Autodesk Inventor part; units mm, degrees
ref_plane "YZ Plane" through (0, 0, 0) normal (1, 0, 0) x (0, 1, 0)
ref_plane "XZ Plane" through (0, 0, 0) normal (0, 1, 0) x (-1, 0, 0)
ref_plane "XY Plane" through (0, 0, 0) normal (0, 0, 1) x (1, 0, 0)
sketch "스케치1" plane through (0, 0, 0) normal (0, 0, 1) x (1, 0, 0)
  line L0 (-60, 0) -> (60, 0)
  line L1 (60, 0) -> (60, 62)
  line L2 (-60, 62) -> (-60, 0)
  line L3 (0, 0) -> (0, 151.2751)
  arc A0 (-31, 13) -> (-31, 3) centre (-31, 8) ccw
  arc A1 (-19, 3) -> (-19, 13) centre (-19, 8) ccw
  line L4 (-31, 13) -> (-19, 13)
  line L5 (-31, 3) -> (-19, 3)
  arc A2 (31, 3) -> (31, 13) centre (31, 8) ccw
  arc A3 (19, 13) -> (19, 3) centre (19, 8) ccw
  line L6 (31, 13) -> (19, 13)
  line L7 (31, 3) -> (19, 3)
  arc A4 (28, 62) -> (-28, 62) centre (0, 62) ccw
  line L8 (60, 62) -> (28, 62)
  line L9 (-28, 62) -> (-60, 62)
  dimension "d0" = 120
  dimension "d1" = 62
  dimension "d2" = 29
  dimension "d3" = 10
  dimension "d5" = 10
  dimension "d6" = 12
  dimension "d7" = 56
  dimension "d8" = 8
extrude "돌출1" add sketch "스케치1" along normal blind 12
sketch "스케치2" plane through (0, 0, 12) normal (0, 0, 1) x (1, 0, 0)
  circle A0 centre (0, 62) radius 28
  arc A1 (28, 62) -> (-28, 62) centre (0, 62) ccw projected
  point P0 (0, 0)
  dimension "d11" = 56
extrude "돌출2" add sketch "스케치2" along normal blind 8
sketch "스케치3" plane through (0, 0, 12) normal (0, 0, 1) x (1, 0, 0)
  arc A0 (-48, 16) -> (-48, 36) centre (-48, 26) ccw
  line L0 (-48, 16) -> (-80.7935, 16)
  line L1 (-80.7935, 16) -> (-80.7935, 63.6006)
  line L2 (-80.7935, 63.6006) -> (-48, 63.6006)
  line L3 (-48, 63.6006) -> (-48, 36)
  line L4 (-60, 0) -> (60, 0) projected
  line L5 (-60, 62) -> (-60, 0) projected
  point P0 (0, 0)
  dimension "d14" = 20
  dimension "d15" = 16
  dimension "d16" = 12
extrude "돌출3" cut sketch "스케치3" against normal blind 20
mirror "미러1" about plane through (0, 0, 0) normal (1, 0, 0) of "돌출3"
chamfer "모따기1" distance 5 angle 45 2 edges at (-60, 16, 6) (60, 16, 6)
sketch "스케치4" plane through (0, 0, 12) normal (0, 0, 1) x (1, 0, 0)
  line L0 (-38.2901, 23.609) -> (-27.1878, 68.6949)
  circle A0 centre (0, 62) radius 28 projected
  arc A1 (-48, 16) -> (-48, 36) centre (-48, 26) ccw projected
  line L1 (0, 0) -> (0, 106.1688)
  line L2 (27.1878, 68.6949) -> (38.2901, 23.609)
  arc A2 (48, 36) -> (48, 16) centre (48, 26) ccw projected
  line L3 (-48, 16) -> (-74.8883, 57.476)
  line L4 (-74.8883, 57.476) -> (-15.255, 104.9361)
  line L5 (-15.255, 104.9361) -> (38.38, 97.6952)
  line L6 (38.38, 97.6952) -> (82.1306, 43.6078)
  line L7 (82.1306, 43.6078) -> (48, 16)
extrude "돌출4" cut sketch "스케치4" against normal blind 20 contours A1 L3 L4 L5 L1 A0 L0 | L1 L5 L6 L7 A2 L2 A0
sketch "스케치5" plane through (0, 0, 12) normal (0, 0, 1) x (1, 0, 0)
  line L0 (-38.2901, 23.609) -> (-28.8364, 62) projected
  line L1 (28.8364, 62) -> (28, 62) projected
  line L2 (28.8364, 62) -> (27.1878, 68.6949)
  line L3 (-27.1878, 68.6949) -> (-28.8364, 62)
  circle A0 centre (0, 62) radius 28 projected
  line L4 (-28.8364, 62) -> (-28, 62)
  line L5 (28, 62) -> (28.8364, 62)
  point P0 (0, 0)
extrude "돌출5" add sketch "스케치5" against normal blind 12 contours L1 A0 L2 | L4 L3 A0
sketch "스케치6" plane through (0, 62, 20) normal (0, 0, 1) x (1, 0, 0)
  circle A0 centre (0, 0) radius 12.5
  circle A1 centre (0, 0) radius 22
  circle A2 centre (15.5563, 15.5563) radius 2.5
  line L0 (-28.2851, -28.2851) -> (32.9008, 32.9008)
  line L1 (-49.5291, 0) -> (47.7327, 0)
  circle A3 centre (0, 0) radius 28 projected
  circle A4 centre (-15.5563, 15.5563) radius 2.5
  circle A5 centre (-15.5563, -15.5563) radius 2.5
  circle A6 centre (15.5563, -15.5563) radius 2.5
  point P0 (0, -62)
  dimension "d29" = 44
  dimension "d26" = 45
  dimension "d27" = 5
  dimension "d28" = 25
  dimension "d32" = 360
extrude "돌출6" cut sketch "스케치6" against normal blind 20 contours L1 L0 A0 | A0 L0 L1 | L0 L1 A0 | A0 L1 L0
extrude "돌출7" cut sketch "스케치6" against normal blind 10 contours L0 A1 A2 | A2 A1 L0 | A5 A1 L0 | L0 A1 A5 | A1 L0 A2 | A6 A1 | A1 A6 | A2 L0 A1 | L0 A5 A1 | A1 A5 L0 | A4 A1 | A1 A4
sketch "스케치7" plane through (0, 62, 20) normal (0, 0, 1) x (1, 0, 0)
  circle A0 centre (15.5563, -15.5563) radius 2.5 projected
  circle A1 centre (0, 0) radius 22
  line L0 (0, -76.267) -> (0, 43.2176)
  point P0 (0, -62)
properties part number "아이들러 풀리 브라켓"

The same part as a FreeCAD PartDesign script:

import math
import FreeCAD as App
import Part
import Sketcher

V = App.Vector
Q = App.Units.Quantity


def edges_at(feature, points):
    """Names of the edges that pass closest to the given points."""
    edges = feature.Shape.Edges
    near = lambda p: min(range(len(edges)), key=lambda i: edges[i].distToShape(Part.Vertex(*p))[0])
    return sorted({f"Edge{near(p) + 1}" for p in points})

doc = App.newDocument("Part")
body = doc.addObject("PartDesign::Body", "Body")

# Sketch on XY plane
sketch1 = body.newObject("Sketcher::SketchObject", "Sketch")
sketch1.AttachmentSupport = (doc.getObject("XY_Plane"), [""])
sketch1.MapMode = "FlatFace"
sketch1.addGeometry(Part.LineSegment(V(-60, 62, 0), V(-60, 0, 0)), False)
sketch1.addGeometry(Part.LineSegment(V(-60, 0, 0), V(60, 0, 0)), False)
sketch1.addGeometry(Part.LineSegment(V(60, 0, 0), V(60, 62, 0)), False)
sketch1.addGeometry(Part.LineSegment(V(60, 62, 0), V(28, 62, 0)), False)
sketch1.addGeometry(Part.ArcOfCircle(Part.Circle(V(0, 62, 0), V(0, 0, 1), 28), math.radians(0), math.radians(180)), False)
sketch1.addGeometry(Part.LineSegment(V(-28, 62, 0), V(-60, 62, 0)), False)
sketch1.addGeometry(Part.ArcOfCircle(Part.Circle(V(-31, 8, 0), V(0, 0, 1), 5), math.radians(90), math.radians(270)), False)
sketch1.addGeometry(Part.LineSegment(V(-31, 13, 0), V(-19, 13, 0)), False)
sketch1.addGeometry(Part.ArcOfCircle(Part.Circle(V(-19, 8, 0), V(0, 0, 1), 5), math.radians(-90), math.radians(90)), False)
sketch1.addGeometry(Part.LineSegment(V(-19, 3, 0), V(-31, 3, 0)), False)
sketch1.addGeometry(Part.LineSegment(V(31, 3, 0), V(19, 3, 0)), False)
sketch1.addGeometry(Part.ArcOfCircle(Part.Circle(V(19, 8, 0), V(0, 0, 1), 5), math.radians(90), math.radians(270)), False)
sketch1.addGeometry(Part.LineSegment(V(19, 13, 0), V(31, 13, 0)), False)
sketch1.addGeometry(Part.ArcOfCircle(Part.Circle(V(31, 8, 0), V(0, 0, 1), 5), math.radians(-90), math.radians(90)), False)
sketch1.addConstraint(Sketcher.Constraint("Coincident", 0, 2, 1, 1))
sketch1.addConstraint(Sketcher.Constraint("Coincident", 1, 2, 2, 1))
sketch1.addConstraint(Sketcher.Constraint("Coincident", 2, 2, 3, 1))
sketch1.addConstraint(Sketcher.Constraint("Coincident", 3, 2, 4, 1))
sketch1.addConstraint(Sketcher.Constraint("Coincident", 4, 2, 5, 1))
sketch1.addConstraint(Sketcher.Constraint("Coincident", 5, 2, 0, 1))
sketch1.addConstraint(Sketcher.Constraint("Tangent", 6, 1, 7, 1))
sketch1.addConstraint(Sketcher.Constraint("Tangent", 7, 2, 8, 2))
sketch1.addConstraint(Sketcher.Constraint("Tangent", 8, 1, 9, 1))
sketch1.addConstraint(Sketcher.Constraint("Tangent", 9, 2, 6, 2))
sketch1.addConstraint(Sketcher.Constraint("Tangent", 10, 2, 11, 2))
sketch1.addConstraint(Sketcher.Constraint("Tangent", 11, 1, 12, 1))
sketch1.addConstraint(Sketcher.Constraint("Tangent", 12, 2, 13, 2))
sketch1.addConstraint(Sketcher.Constraint("Tangent", 13, 1, 10, 1))
sketch1.addConstraint(Sketcher.Constraint("Vertical", 0))
sketch1.addConstraint(Sketcher.Constraint("Horizontal", 1))
sketch1.addConstraint(Sketcher.Constraint("Vertical", 2))
sketch1.addConstraint(Sketcher.Constraint("Horizontal", 3))
sketch1.addConstraint(Sketcher.Constraint("Horizontal", 5))
sketch1.addConstraint(Sketcher.Constraint("Horizontal", 7))
sketch1.addConstraint(Sketcher.Constraint("Horizontal", 9))
sketch1.addConstraint(Sketcher.Constraint("Horizontal", 10))
sketch1.addConstraint(Sketcher.Constraint("Horizontal", 12))
sketch1.addConstraint(Sketcher.Constraint("Equal", 8, 11))
sketch1.addConstraint(Sketcher.Constraint("Symmetric", 0, 2, 1, 2, -1, 1))
sketch1.addConstraint(Sketcher.Constraint("Symmetric", 8, 3, 11, 3, -2))
sketch1.addConstraint(Sketcher.Constraint("Symmetric", 3, 2, 4, 2, -2))
sketch1.addConstraint(Sketcher.Constraint("Horizontal", 4, 3, 2, 2))
sketch1.addConstraint(Sketcher.Constraint("Equal", 9, 10))
sketch1.addConstraint(Sketcher.Constraint("Radius", 4, 28.0))
sketch1.addConstraint(Sketcher.Constraint("Radius", 6, 5.0))
sketch1.addConstraint(Sketcher.Constraint("DistanceX", 1, 1, 1, 2, 120.0))
sketch1.addConstraint(Sketcher.Constraint("DistanceX", 7, 1, 7, 2, 12.0))
sketch1.addConstraint(Sketcher.Constraint("DistanceY", 0, 2, 0, 1, 62.0))
sketch1.addConstraint(Sketcher.Constraint("DistanceY", -1, 1, 6, 3, 8.0))
sketch1.addConstraint(Sketcher.Constraint("DistanceX", 6, 3, 13, 3, 62.0))
pad1 = body.newObject("PartDesign::Pad", "Pad")
pad1.Profile = sketch1
pad1.Length = 12

# Sketch on XY plane
sketch2 = body.newObject("Sketcher::SketchObject", "Sketch001")
sketch2.AttachmentSupport = (doc.getObject("XY_Plane"), [""])
sketch2.MapMode = "FlatFace"
sketch2.AttachmentOffset = App.Placement(V(0, 0, 12), App.Rotation())
sketch2.addGeometry(Part.Circle(V(0, 62, 0), V(0, 0, 1), 28), False)
sketch2.addConstraint(Sketcher.Constraint("PointOnObject", 0, 3, -2))
sketch2.addConstraint(Sketcher.Constraint("Diameter", 0, 56.0))
sketch2.addConstraint(Sketcher.Constraint("DistanceY", -1, 1, 0, 3, 62.0))
pad2 = body.newObject("PartDesign::Pad", "Pad001")
pad2.Profile = sketch2
pad2.Length = 8

# Sketch on XY plane
sketch3 = body.newObject("Sketcher::SketchObject", "Sketch002")
sketch3.AttachmentSupport = (doc.getObject("XY_Plane"), [""])
sketch3.MapMode = "FlatFace"
sketch3.AttachmentOffset = App.Placement(V(0, 0, 12), App.Rotation())
sketch3.addGeometry(Part.LineSegment(V(-80.7935, 16, 0), V(-48, 16, 0)), False)
sketch3.addGeometry(Part.ArcOfCircle(Part.Circle(V(-48, 26, 0), V(0, 0, 1), 10), math.radians(-90), math.radians(90)), False)
sketch3.addGeometry(Part.LineSegment(V(-48, 36, 0), V(-48, 63.6006, 0)), False)
sketch3.addGeometry(Part.LineSegment(V(-48, 63.6006, 0), V(-80.7935, 63.6006, 0)), False)
sketch3.addGeometry(Part.LineSegment(V(-80.7935, 63.6006, 0), V(-80.7935, 16, 0)), False)
sketch3.addConstraint(Sketcher.Constraint("Tangent", 0, 2, 1, 1))
sketch3.addConstraint(Sketcher.Constraint("Coincident", 1, 2, 2, 1))
sketch3.addConstraint(Sketcher.Constraint("Coincident", 2, 2, 3, 1))
sketch3.addConstraint(Sketcher.Constraint("Coincident", 3, 2, 4, 1))
sketch3.addConstraint(Sketcher.Constraint("Coincident", 4, 2, 0, 1))
sketch3.addConstraint(Sketcher.Constraint("Horizontal", 0))
sketch3.addConstraint(Sketcher.Constraint("Vertical", 2))
sketch3.addConstraint(Sketcher.Constraint("Horizontal", 3))
sketch3.addConstraint(Sketcher.Constraint("Vertical", 4))
sketch3.addConstraint(Sketcher.Constraint("Vertical", 0, 2, 1, 2))
sketch3.addConstraint(Sketcher.Constraint("Radius", 1, 10.0))
sketch3.addConstraint(Sketcher.Constraint("DistanceY", -1, 1, 0, 2, 16.0))
sketch3.addConstraint(Sketcher.Constraint("DistanceX", 1, 3, -1, 1, 48.0))
sketch3.addConstraint(Sketcher.Constraint("DistanceX", 0, 1, 0, 2, 32.7935))
sketch3.addConstraint(Sketcher.Constraint("DistanceY", 2, 1, 2, 2, 27.6006))
pocket1 = body.newObject("PartDesign::Pocket", "Pocket")
pocket1.Profile = sketch3
pocket1.Length = 20
doc.recompute()

mirrored = body.newObject("PartDesign::Mirrored", "Mirrored")
mirrored.Originals = [pocket1]
mirrored.MirrorPlane = (doc.getObject("YZ_Plane"), [""])
body.Tip = mirrored
doc.recompute()

chamfer = body.newObject("PartDesign::Chamfer", "Chamfer")
chamfer.Base = (mirrored, edges_at(mirrored, [(-60, 16, 6), (60, 16, 6)]))
chamfer.Size = 5

# Sketch on XY plane
sketch4 = body.newObject("Sketcher::SketchObject", "Sketch003")
sketch4.AttachmentSupport = (doc.getObject("XY_Plane"), [""])
sketch4.MapMode = "FlatFace"
sketch4.AttachmentOffset = App.Placement(V(0, 0, 12), App.Rotation())
sketch4.addGeometry(Part.ArcOfCircle(Part.Circle(V(-48, 26, 0), V(0, 0, 1), 10), math.radians(-90), math.radians(-13.833496)), False)
sketch4.addGeometry(Part.LineSegment(V(-38.2901, 23.609, 0), V(-27.1878, 68.6949, 0)), False)
sketch4.addGeometry(Part.ArcOfCircle(Part.Circle(V(0, 62, 0), V(0, 0, 1), 28), math.radians(13.833655), math.radians(166.166345)), False)
sketch4.addGeometry(Part.LineSegment(V(27.1878, 68.6949, 0), V(38.2901, 23.609, 0)), False)
sketch4.addGeometry(Part.ArcOfCircle(Part.Circle(V(48, 26, 0), V(0, 0, 1), 10), math.radians(-166.166504), math.radians(-90)), False)
sketch4.addGeometry(Part.LineSegment(V(48, 16, 0), V(82.1306, 43.6078, 0)), False)
sketch4.addGeometry(Part.LineSegment(V(82.1306, 43.6078, 0), V(38.38, 97.6952, 0)), False)
sketch4.addGeometry(Part.LineSegment(V(38.38, 97.6952, 0), V(-15.255, 104.9361, 0)), False)
sketch4.addGeometry(Part.LineSegment(V(-15.255, 104.9361, 0), V(-74.8883, 57.476, 0)), False)
sketch4.addGeometry(Part.LineSegment(V(-74.8883, 57.476, 0), V(-48, 16, 0)), False)
sketch4.addConstraint(Sketcher.Constraint("Tangent", 0, 2, 1, 1))
sketch4.addConstraint(Sketcher.Constraint("Tangent", 1, 2, 2, 2))
sketch4.addConstraint(Sketcher.Constraint("Tangent", 2, 1, 3, 1))
sketch4.addConstraint(Sketcher.Constraint("Tangent", 3, 2, 4, 1))
sketch4.addConstraint(Sketcher.Constraint("Coincident", 4, 2, 5, 1))
sketch4.addConstraint(Sketcher.Constraint("Coincident", 5, 2, 6, 1))
sketch4.addConstraint(Sketcher.Constraint("Coincident", 6, 2, 7, 1))
sketch4.addConstraint(Sketcher.Constraint("Coincident", 7, 2, 8, 1))
sketch4.addConstraint(Sketcher.Constraint("Coincident", 8, 2, 9, 1))
sketch4.addConstraint(Sketcher.Constraint("Coincident", 9, 2, 0, 1))
sketch4.addConstraint(Sketcher.Constraint("Equal", 0, 4))
sketch4.addConstraint(Sketcher.Constraint("Symmetric", 0, 3, 4, 3, -2))
sketch4.addConstraint(Sketcher.Constraint("PointOnObject", 2, 3, -2))
sketch4.addConstraint(Sketcher.Constraint("Perpendicular", 5, 6))
sketch4.addConstraint(Sketcher.Constraint("Vertical", 0, 3, 9, 2))
sketch4.addConstraint(Sketcher.Constraint("Radius", 0, 10.0))
sketch4.addConstraint(Sketcher.Constraint("Radius", 2, 28.0))
sketch4.addConstraint(Sketcher.Constraint("DistanceX", 0, 3, -1, 1, 48.0))
sketch4.addConstraint(Sketcher.Constraint("DistanceY", -1, 1, 0, 3, 26.0))
sketch4.addConstraint(Sketcher.Constraint("DistanceY", -1, 1, 2, 3, 62.0))
sketch4.addConstraint(Sketcher.Constraint("DistanceX", -1, 1, 4, 2, 48.0))
sketch4.addConstraint(Sketcher.Constraint("Angle", 5, Q("38.969 deg")))
sketch4.addConstraint(Sketcher.Constraint("DistanceX", -1, 1, 6, 2, 38.38))
sketch4.addConstraint(Sketcher.Constraint("DistanceY", 8, 2, 7, 2, 47.46))
sketch4.addConstraint(Sketcher.Constraint("Distance", 6, 69.567))
sketch4.addConstraint(Sketcher.Constraint("Distance", 8, 76.214))
sketch4.addConstraint(Sketcher.Constraint("DistanceX", 7, 2, -1, 1, 15.255))
sketch4.addConstraint(Sketcher.Constraint("DistanceY", -1, 1, 7, 2, 104.936))
pocket2 = body.newObject("PartDesign::Pocket", "Pocket001")
pocket2.Profile = sketch4
pocket2.Length = 20

# Sketch on XY plane
sketch5 = body.newObject("Sketcher::SketchObject", "Sketch004")
sketch5.AttachmentSupport = (doc.getObject("XY_Plane"), [""])
sketch5.MapMode = "FlatFace"
sketch5.AttachmentOffset = App.Placement(V(0, 0, 12), App.Rotation())
sketch5.addGeometry(Part.LineSegment(V(28, 62, 0), V(28.8364, 62, 0)), False)
sketch5.addGeometry(Part.LineSegment(V(28.8364, 62, 0), V(27.1878, 68.6949, 0)), False)
sketch5.addGeometry(Part.ArcOfCircle(Part.Circle(V(0, 62, 0), V(0, 0, 1), 28), math.radians(0), math.radians(13.833655)), False)
sketch5.addGeometry(Part.LineSegment(V(-28.8364, 62, 0), V(-28, 62, 0)), False)
sketch5.addGeometry(Part.ArcOfCircle(Part.Circle(V(0, 62, 0), V(0, 0, 1), 28), math.radians(166.166345), math.radians(180)), False)
sketch5.addGeometry(Part.LineSegment(V(-27.1878, 68.6949, 0), V(-28.8364, 62, 0)), False)
sketch5.addConstraint(Sketcher.Constraint("Coincident", 0, 2, 1, 1))
sketch5.addConstraint(Sketcher.Constraint("Tangent", 1, 2, 2, 2))
sketch5.addConstraint(Sketcher.Constraint("Coincident", 2, 1, 0, 1))
sketch5.addConstraint(Sketcher.Constraint("Coincident", 3, 2, 4, 2))
sketch5.addConstraint(Sketcher.Constraint("Tangent", 4, 1, 5, 1))
sketch5.addConstraint(Sketcher.Constraint("Coincident", 5, 2, 3, 1))
sketch5.addConstraint(Sketcher.Constraint("Horizontal", 0))
sketch5.addConstraint(Sketcher.Constraint("Horizontal", 3))
sketch5.addConstraint(Sketcher.Constraint("Coincident", 4, 3, 2, 3))
sketch5.addConstraint(Sketcher.Constraint("Equal", 2, 4))
sketch5.addConstraint(Sketcher.Constraint("Symmetric", 2, 1, 3, 2, -2))
sketch5.addConstraint(Sketcher.Constraint("Horizontal", 4, 3, 0, 2))
sketch5.addConstraint(Sketcher.Constraint("Horizontal", 1, 2, 4, 1))
sketch5.addConstraint(Sketcher.Constraint("Radius", 2, 28.0))
sketch5.addConstraint(Sketcher.Constraint("DistanceY", -1, 1, 2, 3, 62.0))
sketch5.addConstraint(Sketcher.Constraint("Distance", 1, 6.895))
pad3 = body.newObject("PartDesign::Pad", "Pad002")
pad3.Profile = sketch5
pad3.Length = 12
pad3.Reversed = True

# Sketch on XY plane
sketch6 = body.newObject("Sketcher::SketchObject", "Sketch005")
sketch6.AttachmentSupport = (doc.getObject("XY_Plane"), [""])
sketch6.MapMode = "FlatFace"
sketch6.AttachmentOffset = App.Placement(V(0, 0, 20), App.Rotation())
sketch6.addGeometry(Part.Circle(V(0, 62, 0), V(0, 0, 1), 12.5), False)
sketch6.addConstraint(Sketcher.Constraint("PointOnObject", 0, 3, -2))
sketch6.addConstraint(Sketcher.Constraint("Diameter", 0, 25.0))
sketch6.addConstraint(Sketcher.Constraint("DistanceY", -1, 1, 0, 3, 62.0))
pocket3 = body.newObject("PartDesign::Pocket", "Pocket002")
pocket3.Profile = sketch6
pocket3.Length = 20

# Sketch on XY plane
sketch7 = body.newObject("Sketcher::SketchObject", "Sketch006")
sketch7.AttachmentSupport = (doc.getObject("XY_Plane"), [""])
sketch7.MapMode = "FlatFace"
sketch7.AttachmentOffset = App.Placement(V(0, 0, 20), App.Rotation())
sketch7.addGeometry(Part.Circle(V(15.5563, 77.5563, 0), V(0, 0, 1), 2.5), False)
sketch7.addGeometry(Part.Circle(V(-15.5563, 46.4437, 0), V(0, 0, 1), 2.5), False)
sketch7.addGeometry(Part.Circle(V(15.5563, 46.4437, 0), V(0, 0, 1), 2.5), False)
sketch7.addGeometry(Part.Circle(V(-15.5563, 77.5563, 0), V(0, 0, 1), 2.5), False)
sketch7.addConstraint(Sketcher.Constraint("Equal", 0, 1))
sketch7.addConstraint(Sketcher.Constraint("Equal", 1, 2))
sketch7.addConstraint(Sketcher.Constraint("Equal", 2, 3))
sketch7.addConstraint(Sketcher.Constraint("Symmetric", 1, 3, 2, 3, -2))
sketch7.addConstraint(Sketcher.Constraint("Symmetric", 0, 3, 3, 3, -2))
sketch7.addConstraint(Sketcher.Constraint("Vertical", 0, 3, 2, 3))
sketch7.addConstraint(Sketcher.Constraint("Diameter", 0, 5.0))
sketch7.addConstraint(Sketcher.Constraint("DistanceX", -1, 1, 0, 3, 15.5563))
sketch7.addConstraint(Sketcher.Constraint("DistanceY", -1, 1, 0, 3, 77.5563))
sketch7.addConstraint(Sketcher.Constraint("DistanceY", -1, 1, 1, 3, 46.4437))
pocket4 = body.newObject("PartDesign::Pocket", "Pocket003")
pocket4.Profile = sketch7
pocket4.Length = 10

doc.recompute()
